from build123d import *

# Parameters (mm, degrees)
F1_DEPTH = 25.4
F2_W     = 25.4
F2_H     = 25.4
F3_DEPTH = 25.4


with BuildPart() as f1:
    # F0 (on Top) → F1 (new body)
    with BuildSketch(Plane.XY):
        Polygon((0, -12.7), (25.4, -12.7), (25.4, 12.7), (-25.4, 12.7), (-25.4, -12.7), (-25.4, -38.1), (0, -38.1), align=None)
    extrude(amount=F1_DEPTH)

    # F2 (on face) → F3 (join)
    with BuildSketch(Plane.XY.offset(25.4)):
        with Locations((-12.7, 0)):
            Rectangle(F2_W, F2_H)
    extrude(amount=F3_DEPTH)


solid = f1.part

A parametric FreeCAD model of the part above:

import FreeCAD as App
import Part
import Sketcher
Q = App.Units.Quantity

doc = App.newDocument("Part")
params = doc.addObject("Spreadsheet::Sheet", "Params")
for row, (alias, value) in enumerate([
    ("sketch1_width", "1 in"),
    ("pad1_length", "1 in"),
    ("sketch2_width", "1 in"),
    ("pad2_length", "1 in"),
], start=1):
    params.set(f"A{row}", alias)
    params.set(f"B{row}", "=" + value)
    params.setAlias(f"B{row}", alias)

body = doc.addObject("PartDesign::Body", "Body")

# Sketch on XY plane
sketch1 = doc.addObject("Sketcher::SketchObject", "Sketch")
body.addObject(sketch1)
sketch1.AttachmentSupport = (doc.XY_Plane, [""])
sketch1.MapMode = "FlatFace"
sketch1.addGeometry(Part.LineSegment(App.Vector(0, -13, 0), App.Vector(25, -13, 0)), False)
sketch1.addGeometry(Part.LineSegment(App.Vector(25, -13, 0), App.Vector(25, 13, 0)), False)
sketch1.addGeometry(Part.LineSegment(App.Vector(25, 13, 0), App.Vector(-25, 13, 0)), False)
sketch1.addGeometry(Part.LineSegment(App.Vector(-25, 13, 0), App.Vector(-25, -38, 0)), False)
sketch1.addGeometry(Part.LineSegment(App.Vector(-25, -38, 0), App.Vector(0, -38, 0)), False)
sketch1.addGeometry(Part.LineSegment(App.Vector(0, -38, 0), App.Vector(0, -13, 0)), False)
sketch1.addConstraint(Sketcher.Constraint("Coincident", 0, 2, 1, 1))
sketch1.addConstraint(Sketcher.Constraint("Coincident", 1, 2, 2, 1))
sketch1.addConstraint(Sketcher.Constraint("Coincident", 2, 2, 3, 1))
sketch1.addConstraint(Sketcher.Constraint("Coincident", 3, 2, 4, 1))
sketch1.addConstraint(Sketcher.Constraint("Coincident", 4, 2, 5, 1))
sketch1.addConstraint(Sketcher.Constraint("Coincident", 5, 2, 0, 1))
sketch1.addConstraint(Sketcher.Constraint("Horizontal", 0))
sketch1.addConstraint(Sketcher.Constraint("Vertical", 1))
sketch1.addConstraint(Sketcher.Constraint("Horizontal", 2))
sketch1.addConstraint(Sketcher.Constraint("Vertical", 3))
sketch1.addConstraint(Sketcher.Constraint("Horizontal", 4))
sketch1.addConstraint(Sketcher.Constraint("Vertical", 5))
sketch1.addConstraint(Sketcher.Constraint("Symmetric", 0, 2, 2, 2, -1, 1))
sketch1.addConstraint(Sketcher.Constraint("PointOnObject", 4, 2, -2))
sketch1.addConstraint(Sketcher.Constraint("Equal", 4, 1))
sketch1.addConstraint(Sketcher.Constraint("Equal", 2, 3))
sketch1.addConstraint(Sketcher.Constraint("DistanceX", 0, 1, 0, 2, Q("1 in")))
sketch1.setExpression("Constraints[16]", "Params.sketch1_width")
pad1 = doc.addObject("PartDesign::Pad", "Pad")
body.addObject(pad1)
pad1.Profile = sketch1
pad1.setExpression("Length", "Params.pad1_length")

# Sketch on XY plane
sketch2 = doc.addObject("Sketcher::SketchObject", "Sketch001")
body.addObject(sketch2)
sketch2.AttachmentSupport = (doc.XY_Plane, [""])
sketch2.MapMode = "FlatFace"
sketch2.AttachmentOffset = App.Placement(App.Vector(0, 0, 1 * 25.4), App.Rotation())
sketch2.addGeometry(Part.LineSegment(App.Vector(-25, 13, 0), App.Vector(-25, -13, 0)), False)
sketch2.addGeometry(Part.LineSegment(App.Vector(-25, -13, 0), App.Vector(0, -13, 0)), False)
sketch2.addGeometry(Part.LineSegment(App.Vector(0, -13, 0), App.Vector(0, 13, 0)), False)
sketch2.addGeometry(Part.LineSegment(App.Vector(0, 13, 0), App.Vector(-25, 13, 0)), False)
sketch2.addConstraint(Sketcher.Constraint("Coincident", 0, 2, 1, 1))
sketch2.addConstraint(Sketcher.Constraint("Coincident", 1, 2, 2, 1))
sketch2.addConstraint(Sketcher.Constraint("Coincident", 2, 2, 3, 1))
sketch2.addConstraint(Sketcher.Constraint("Coincident", 3, 2, 0, 1))
sketch2.addConstraint(Sketcher.Constraint("Vertical", 0))
sketch2.addConstraint(Sketcher.Constraint("Horizontal", 1))
sketch2.addConstraint(Sketcher.Constraint("Vertical", 2))
sketch2.addConstraint(Sketcher.Constraint("Horizontal", 3))
sketch2.addConstraint(Sketcher.Constraint("Symmetric", 1, 2, 2, 2, -1, 1))
sketch2.addConstraint(Sketcher.Constraint("Equal", 3, 0))
sketch2.addConstraint(Sketcher.Constraint("DistanceX", 1, 1, 1, 2, Q("1 in")))
sketch2.setExpression("Constraints[10]", "Params.sketch2_width")
pad2 = doc.addObject("PartDesign::Pad", "Pad001")
body.addObject(pad2)
pad2.Profile = sketch2
pad2.setExpression("Length", "Params.pad2_length")

doc.recompute()
